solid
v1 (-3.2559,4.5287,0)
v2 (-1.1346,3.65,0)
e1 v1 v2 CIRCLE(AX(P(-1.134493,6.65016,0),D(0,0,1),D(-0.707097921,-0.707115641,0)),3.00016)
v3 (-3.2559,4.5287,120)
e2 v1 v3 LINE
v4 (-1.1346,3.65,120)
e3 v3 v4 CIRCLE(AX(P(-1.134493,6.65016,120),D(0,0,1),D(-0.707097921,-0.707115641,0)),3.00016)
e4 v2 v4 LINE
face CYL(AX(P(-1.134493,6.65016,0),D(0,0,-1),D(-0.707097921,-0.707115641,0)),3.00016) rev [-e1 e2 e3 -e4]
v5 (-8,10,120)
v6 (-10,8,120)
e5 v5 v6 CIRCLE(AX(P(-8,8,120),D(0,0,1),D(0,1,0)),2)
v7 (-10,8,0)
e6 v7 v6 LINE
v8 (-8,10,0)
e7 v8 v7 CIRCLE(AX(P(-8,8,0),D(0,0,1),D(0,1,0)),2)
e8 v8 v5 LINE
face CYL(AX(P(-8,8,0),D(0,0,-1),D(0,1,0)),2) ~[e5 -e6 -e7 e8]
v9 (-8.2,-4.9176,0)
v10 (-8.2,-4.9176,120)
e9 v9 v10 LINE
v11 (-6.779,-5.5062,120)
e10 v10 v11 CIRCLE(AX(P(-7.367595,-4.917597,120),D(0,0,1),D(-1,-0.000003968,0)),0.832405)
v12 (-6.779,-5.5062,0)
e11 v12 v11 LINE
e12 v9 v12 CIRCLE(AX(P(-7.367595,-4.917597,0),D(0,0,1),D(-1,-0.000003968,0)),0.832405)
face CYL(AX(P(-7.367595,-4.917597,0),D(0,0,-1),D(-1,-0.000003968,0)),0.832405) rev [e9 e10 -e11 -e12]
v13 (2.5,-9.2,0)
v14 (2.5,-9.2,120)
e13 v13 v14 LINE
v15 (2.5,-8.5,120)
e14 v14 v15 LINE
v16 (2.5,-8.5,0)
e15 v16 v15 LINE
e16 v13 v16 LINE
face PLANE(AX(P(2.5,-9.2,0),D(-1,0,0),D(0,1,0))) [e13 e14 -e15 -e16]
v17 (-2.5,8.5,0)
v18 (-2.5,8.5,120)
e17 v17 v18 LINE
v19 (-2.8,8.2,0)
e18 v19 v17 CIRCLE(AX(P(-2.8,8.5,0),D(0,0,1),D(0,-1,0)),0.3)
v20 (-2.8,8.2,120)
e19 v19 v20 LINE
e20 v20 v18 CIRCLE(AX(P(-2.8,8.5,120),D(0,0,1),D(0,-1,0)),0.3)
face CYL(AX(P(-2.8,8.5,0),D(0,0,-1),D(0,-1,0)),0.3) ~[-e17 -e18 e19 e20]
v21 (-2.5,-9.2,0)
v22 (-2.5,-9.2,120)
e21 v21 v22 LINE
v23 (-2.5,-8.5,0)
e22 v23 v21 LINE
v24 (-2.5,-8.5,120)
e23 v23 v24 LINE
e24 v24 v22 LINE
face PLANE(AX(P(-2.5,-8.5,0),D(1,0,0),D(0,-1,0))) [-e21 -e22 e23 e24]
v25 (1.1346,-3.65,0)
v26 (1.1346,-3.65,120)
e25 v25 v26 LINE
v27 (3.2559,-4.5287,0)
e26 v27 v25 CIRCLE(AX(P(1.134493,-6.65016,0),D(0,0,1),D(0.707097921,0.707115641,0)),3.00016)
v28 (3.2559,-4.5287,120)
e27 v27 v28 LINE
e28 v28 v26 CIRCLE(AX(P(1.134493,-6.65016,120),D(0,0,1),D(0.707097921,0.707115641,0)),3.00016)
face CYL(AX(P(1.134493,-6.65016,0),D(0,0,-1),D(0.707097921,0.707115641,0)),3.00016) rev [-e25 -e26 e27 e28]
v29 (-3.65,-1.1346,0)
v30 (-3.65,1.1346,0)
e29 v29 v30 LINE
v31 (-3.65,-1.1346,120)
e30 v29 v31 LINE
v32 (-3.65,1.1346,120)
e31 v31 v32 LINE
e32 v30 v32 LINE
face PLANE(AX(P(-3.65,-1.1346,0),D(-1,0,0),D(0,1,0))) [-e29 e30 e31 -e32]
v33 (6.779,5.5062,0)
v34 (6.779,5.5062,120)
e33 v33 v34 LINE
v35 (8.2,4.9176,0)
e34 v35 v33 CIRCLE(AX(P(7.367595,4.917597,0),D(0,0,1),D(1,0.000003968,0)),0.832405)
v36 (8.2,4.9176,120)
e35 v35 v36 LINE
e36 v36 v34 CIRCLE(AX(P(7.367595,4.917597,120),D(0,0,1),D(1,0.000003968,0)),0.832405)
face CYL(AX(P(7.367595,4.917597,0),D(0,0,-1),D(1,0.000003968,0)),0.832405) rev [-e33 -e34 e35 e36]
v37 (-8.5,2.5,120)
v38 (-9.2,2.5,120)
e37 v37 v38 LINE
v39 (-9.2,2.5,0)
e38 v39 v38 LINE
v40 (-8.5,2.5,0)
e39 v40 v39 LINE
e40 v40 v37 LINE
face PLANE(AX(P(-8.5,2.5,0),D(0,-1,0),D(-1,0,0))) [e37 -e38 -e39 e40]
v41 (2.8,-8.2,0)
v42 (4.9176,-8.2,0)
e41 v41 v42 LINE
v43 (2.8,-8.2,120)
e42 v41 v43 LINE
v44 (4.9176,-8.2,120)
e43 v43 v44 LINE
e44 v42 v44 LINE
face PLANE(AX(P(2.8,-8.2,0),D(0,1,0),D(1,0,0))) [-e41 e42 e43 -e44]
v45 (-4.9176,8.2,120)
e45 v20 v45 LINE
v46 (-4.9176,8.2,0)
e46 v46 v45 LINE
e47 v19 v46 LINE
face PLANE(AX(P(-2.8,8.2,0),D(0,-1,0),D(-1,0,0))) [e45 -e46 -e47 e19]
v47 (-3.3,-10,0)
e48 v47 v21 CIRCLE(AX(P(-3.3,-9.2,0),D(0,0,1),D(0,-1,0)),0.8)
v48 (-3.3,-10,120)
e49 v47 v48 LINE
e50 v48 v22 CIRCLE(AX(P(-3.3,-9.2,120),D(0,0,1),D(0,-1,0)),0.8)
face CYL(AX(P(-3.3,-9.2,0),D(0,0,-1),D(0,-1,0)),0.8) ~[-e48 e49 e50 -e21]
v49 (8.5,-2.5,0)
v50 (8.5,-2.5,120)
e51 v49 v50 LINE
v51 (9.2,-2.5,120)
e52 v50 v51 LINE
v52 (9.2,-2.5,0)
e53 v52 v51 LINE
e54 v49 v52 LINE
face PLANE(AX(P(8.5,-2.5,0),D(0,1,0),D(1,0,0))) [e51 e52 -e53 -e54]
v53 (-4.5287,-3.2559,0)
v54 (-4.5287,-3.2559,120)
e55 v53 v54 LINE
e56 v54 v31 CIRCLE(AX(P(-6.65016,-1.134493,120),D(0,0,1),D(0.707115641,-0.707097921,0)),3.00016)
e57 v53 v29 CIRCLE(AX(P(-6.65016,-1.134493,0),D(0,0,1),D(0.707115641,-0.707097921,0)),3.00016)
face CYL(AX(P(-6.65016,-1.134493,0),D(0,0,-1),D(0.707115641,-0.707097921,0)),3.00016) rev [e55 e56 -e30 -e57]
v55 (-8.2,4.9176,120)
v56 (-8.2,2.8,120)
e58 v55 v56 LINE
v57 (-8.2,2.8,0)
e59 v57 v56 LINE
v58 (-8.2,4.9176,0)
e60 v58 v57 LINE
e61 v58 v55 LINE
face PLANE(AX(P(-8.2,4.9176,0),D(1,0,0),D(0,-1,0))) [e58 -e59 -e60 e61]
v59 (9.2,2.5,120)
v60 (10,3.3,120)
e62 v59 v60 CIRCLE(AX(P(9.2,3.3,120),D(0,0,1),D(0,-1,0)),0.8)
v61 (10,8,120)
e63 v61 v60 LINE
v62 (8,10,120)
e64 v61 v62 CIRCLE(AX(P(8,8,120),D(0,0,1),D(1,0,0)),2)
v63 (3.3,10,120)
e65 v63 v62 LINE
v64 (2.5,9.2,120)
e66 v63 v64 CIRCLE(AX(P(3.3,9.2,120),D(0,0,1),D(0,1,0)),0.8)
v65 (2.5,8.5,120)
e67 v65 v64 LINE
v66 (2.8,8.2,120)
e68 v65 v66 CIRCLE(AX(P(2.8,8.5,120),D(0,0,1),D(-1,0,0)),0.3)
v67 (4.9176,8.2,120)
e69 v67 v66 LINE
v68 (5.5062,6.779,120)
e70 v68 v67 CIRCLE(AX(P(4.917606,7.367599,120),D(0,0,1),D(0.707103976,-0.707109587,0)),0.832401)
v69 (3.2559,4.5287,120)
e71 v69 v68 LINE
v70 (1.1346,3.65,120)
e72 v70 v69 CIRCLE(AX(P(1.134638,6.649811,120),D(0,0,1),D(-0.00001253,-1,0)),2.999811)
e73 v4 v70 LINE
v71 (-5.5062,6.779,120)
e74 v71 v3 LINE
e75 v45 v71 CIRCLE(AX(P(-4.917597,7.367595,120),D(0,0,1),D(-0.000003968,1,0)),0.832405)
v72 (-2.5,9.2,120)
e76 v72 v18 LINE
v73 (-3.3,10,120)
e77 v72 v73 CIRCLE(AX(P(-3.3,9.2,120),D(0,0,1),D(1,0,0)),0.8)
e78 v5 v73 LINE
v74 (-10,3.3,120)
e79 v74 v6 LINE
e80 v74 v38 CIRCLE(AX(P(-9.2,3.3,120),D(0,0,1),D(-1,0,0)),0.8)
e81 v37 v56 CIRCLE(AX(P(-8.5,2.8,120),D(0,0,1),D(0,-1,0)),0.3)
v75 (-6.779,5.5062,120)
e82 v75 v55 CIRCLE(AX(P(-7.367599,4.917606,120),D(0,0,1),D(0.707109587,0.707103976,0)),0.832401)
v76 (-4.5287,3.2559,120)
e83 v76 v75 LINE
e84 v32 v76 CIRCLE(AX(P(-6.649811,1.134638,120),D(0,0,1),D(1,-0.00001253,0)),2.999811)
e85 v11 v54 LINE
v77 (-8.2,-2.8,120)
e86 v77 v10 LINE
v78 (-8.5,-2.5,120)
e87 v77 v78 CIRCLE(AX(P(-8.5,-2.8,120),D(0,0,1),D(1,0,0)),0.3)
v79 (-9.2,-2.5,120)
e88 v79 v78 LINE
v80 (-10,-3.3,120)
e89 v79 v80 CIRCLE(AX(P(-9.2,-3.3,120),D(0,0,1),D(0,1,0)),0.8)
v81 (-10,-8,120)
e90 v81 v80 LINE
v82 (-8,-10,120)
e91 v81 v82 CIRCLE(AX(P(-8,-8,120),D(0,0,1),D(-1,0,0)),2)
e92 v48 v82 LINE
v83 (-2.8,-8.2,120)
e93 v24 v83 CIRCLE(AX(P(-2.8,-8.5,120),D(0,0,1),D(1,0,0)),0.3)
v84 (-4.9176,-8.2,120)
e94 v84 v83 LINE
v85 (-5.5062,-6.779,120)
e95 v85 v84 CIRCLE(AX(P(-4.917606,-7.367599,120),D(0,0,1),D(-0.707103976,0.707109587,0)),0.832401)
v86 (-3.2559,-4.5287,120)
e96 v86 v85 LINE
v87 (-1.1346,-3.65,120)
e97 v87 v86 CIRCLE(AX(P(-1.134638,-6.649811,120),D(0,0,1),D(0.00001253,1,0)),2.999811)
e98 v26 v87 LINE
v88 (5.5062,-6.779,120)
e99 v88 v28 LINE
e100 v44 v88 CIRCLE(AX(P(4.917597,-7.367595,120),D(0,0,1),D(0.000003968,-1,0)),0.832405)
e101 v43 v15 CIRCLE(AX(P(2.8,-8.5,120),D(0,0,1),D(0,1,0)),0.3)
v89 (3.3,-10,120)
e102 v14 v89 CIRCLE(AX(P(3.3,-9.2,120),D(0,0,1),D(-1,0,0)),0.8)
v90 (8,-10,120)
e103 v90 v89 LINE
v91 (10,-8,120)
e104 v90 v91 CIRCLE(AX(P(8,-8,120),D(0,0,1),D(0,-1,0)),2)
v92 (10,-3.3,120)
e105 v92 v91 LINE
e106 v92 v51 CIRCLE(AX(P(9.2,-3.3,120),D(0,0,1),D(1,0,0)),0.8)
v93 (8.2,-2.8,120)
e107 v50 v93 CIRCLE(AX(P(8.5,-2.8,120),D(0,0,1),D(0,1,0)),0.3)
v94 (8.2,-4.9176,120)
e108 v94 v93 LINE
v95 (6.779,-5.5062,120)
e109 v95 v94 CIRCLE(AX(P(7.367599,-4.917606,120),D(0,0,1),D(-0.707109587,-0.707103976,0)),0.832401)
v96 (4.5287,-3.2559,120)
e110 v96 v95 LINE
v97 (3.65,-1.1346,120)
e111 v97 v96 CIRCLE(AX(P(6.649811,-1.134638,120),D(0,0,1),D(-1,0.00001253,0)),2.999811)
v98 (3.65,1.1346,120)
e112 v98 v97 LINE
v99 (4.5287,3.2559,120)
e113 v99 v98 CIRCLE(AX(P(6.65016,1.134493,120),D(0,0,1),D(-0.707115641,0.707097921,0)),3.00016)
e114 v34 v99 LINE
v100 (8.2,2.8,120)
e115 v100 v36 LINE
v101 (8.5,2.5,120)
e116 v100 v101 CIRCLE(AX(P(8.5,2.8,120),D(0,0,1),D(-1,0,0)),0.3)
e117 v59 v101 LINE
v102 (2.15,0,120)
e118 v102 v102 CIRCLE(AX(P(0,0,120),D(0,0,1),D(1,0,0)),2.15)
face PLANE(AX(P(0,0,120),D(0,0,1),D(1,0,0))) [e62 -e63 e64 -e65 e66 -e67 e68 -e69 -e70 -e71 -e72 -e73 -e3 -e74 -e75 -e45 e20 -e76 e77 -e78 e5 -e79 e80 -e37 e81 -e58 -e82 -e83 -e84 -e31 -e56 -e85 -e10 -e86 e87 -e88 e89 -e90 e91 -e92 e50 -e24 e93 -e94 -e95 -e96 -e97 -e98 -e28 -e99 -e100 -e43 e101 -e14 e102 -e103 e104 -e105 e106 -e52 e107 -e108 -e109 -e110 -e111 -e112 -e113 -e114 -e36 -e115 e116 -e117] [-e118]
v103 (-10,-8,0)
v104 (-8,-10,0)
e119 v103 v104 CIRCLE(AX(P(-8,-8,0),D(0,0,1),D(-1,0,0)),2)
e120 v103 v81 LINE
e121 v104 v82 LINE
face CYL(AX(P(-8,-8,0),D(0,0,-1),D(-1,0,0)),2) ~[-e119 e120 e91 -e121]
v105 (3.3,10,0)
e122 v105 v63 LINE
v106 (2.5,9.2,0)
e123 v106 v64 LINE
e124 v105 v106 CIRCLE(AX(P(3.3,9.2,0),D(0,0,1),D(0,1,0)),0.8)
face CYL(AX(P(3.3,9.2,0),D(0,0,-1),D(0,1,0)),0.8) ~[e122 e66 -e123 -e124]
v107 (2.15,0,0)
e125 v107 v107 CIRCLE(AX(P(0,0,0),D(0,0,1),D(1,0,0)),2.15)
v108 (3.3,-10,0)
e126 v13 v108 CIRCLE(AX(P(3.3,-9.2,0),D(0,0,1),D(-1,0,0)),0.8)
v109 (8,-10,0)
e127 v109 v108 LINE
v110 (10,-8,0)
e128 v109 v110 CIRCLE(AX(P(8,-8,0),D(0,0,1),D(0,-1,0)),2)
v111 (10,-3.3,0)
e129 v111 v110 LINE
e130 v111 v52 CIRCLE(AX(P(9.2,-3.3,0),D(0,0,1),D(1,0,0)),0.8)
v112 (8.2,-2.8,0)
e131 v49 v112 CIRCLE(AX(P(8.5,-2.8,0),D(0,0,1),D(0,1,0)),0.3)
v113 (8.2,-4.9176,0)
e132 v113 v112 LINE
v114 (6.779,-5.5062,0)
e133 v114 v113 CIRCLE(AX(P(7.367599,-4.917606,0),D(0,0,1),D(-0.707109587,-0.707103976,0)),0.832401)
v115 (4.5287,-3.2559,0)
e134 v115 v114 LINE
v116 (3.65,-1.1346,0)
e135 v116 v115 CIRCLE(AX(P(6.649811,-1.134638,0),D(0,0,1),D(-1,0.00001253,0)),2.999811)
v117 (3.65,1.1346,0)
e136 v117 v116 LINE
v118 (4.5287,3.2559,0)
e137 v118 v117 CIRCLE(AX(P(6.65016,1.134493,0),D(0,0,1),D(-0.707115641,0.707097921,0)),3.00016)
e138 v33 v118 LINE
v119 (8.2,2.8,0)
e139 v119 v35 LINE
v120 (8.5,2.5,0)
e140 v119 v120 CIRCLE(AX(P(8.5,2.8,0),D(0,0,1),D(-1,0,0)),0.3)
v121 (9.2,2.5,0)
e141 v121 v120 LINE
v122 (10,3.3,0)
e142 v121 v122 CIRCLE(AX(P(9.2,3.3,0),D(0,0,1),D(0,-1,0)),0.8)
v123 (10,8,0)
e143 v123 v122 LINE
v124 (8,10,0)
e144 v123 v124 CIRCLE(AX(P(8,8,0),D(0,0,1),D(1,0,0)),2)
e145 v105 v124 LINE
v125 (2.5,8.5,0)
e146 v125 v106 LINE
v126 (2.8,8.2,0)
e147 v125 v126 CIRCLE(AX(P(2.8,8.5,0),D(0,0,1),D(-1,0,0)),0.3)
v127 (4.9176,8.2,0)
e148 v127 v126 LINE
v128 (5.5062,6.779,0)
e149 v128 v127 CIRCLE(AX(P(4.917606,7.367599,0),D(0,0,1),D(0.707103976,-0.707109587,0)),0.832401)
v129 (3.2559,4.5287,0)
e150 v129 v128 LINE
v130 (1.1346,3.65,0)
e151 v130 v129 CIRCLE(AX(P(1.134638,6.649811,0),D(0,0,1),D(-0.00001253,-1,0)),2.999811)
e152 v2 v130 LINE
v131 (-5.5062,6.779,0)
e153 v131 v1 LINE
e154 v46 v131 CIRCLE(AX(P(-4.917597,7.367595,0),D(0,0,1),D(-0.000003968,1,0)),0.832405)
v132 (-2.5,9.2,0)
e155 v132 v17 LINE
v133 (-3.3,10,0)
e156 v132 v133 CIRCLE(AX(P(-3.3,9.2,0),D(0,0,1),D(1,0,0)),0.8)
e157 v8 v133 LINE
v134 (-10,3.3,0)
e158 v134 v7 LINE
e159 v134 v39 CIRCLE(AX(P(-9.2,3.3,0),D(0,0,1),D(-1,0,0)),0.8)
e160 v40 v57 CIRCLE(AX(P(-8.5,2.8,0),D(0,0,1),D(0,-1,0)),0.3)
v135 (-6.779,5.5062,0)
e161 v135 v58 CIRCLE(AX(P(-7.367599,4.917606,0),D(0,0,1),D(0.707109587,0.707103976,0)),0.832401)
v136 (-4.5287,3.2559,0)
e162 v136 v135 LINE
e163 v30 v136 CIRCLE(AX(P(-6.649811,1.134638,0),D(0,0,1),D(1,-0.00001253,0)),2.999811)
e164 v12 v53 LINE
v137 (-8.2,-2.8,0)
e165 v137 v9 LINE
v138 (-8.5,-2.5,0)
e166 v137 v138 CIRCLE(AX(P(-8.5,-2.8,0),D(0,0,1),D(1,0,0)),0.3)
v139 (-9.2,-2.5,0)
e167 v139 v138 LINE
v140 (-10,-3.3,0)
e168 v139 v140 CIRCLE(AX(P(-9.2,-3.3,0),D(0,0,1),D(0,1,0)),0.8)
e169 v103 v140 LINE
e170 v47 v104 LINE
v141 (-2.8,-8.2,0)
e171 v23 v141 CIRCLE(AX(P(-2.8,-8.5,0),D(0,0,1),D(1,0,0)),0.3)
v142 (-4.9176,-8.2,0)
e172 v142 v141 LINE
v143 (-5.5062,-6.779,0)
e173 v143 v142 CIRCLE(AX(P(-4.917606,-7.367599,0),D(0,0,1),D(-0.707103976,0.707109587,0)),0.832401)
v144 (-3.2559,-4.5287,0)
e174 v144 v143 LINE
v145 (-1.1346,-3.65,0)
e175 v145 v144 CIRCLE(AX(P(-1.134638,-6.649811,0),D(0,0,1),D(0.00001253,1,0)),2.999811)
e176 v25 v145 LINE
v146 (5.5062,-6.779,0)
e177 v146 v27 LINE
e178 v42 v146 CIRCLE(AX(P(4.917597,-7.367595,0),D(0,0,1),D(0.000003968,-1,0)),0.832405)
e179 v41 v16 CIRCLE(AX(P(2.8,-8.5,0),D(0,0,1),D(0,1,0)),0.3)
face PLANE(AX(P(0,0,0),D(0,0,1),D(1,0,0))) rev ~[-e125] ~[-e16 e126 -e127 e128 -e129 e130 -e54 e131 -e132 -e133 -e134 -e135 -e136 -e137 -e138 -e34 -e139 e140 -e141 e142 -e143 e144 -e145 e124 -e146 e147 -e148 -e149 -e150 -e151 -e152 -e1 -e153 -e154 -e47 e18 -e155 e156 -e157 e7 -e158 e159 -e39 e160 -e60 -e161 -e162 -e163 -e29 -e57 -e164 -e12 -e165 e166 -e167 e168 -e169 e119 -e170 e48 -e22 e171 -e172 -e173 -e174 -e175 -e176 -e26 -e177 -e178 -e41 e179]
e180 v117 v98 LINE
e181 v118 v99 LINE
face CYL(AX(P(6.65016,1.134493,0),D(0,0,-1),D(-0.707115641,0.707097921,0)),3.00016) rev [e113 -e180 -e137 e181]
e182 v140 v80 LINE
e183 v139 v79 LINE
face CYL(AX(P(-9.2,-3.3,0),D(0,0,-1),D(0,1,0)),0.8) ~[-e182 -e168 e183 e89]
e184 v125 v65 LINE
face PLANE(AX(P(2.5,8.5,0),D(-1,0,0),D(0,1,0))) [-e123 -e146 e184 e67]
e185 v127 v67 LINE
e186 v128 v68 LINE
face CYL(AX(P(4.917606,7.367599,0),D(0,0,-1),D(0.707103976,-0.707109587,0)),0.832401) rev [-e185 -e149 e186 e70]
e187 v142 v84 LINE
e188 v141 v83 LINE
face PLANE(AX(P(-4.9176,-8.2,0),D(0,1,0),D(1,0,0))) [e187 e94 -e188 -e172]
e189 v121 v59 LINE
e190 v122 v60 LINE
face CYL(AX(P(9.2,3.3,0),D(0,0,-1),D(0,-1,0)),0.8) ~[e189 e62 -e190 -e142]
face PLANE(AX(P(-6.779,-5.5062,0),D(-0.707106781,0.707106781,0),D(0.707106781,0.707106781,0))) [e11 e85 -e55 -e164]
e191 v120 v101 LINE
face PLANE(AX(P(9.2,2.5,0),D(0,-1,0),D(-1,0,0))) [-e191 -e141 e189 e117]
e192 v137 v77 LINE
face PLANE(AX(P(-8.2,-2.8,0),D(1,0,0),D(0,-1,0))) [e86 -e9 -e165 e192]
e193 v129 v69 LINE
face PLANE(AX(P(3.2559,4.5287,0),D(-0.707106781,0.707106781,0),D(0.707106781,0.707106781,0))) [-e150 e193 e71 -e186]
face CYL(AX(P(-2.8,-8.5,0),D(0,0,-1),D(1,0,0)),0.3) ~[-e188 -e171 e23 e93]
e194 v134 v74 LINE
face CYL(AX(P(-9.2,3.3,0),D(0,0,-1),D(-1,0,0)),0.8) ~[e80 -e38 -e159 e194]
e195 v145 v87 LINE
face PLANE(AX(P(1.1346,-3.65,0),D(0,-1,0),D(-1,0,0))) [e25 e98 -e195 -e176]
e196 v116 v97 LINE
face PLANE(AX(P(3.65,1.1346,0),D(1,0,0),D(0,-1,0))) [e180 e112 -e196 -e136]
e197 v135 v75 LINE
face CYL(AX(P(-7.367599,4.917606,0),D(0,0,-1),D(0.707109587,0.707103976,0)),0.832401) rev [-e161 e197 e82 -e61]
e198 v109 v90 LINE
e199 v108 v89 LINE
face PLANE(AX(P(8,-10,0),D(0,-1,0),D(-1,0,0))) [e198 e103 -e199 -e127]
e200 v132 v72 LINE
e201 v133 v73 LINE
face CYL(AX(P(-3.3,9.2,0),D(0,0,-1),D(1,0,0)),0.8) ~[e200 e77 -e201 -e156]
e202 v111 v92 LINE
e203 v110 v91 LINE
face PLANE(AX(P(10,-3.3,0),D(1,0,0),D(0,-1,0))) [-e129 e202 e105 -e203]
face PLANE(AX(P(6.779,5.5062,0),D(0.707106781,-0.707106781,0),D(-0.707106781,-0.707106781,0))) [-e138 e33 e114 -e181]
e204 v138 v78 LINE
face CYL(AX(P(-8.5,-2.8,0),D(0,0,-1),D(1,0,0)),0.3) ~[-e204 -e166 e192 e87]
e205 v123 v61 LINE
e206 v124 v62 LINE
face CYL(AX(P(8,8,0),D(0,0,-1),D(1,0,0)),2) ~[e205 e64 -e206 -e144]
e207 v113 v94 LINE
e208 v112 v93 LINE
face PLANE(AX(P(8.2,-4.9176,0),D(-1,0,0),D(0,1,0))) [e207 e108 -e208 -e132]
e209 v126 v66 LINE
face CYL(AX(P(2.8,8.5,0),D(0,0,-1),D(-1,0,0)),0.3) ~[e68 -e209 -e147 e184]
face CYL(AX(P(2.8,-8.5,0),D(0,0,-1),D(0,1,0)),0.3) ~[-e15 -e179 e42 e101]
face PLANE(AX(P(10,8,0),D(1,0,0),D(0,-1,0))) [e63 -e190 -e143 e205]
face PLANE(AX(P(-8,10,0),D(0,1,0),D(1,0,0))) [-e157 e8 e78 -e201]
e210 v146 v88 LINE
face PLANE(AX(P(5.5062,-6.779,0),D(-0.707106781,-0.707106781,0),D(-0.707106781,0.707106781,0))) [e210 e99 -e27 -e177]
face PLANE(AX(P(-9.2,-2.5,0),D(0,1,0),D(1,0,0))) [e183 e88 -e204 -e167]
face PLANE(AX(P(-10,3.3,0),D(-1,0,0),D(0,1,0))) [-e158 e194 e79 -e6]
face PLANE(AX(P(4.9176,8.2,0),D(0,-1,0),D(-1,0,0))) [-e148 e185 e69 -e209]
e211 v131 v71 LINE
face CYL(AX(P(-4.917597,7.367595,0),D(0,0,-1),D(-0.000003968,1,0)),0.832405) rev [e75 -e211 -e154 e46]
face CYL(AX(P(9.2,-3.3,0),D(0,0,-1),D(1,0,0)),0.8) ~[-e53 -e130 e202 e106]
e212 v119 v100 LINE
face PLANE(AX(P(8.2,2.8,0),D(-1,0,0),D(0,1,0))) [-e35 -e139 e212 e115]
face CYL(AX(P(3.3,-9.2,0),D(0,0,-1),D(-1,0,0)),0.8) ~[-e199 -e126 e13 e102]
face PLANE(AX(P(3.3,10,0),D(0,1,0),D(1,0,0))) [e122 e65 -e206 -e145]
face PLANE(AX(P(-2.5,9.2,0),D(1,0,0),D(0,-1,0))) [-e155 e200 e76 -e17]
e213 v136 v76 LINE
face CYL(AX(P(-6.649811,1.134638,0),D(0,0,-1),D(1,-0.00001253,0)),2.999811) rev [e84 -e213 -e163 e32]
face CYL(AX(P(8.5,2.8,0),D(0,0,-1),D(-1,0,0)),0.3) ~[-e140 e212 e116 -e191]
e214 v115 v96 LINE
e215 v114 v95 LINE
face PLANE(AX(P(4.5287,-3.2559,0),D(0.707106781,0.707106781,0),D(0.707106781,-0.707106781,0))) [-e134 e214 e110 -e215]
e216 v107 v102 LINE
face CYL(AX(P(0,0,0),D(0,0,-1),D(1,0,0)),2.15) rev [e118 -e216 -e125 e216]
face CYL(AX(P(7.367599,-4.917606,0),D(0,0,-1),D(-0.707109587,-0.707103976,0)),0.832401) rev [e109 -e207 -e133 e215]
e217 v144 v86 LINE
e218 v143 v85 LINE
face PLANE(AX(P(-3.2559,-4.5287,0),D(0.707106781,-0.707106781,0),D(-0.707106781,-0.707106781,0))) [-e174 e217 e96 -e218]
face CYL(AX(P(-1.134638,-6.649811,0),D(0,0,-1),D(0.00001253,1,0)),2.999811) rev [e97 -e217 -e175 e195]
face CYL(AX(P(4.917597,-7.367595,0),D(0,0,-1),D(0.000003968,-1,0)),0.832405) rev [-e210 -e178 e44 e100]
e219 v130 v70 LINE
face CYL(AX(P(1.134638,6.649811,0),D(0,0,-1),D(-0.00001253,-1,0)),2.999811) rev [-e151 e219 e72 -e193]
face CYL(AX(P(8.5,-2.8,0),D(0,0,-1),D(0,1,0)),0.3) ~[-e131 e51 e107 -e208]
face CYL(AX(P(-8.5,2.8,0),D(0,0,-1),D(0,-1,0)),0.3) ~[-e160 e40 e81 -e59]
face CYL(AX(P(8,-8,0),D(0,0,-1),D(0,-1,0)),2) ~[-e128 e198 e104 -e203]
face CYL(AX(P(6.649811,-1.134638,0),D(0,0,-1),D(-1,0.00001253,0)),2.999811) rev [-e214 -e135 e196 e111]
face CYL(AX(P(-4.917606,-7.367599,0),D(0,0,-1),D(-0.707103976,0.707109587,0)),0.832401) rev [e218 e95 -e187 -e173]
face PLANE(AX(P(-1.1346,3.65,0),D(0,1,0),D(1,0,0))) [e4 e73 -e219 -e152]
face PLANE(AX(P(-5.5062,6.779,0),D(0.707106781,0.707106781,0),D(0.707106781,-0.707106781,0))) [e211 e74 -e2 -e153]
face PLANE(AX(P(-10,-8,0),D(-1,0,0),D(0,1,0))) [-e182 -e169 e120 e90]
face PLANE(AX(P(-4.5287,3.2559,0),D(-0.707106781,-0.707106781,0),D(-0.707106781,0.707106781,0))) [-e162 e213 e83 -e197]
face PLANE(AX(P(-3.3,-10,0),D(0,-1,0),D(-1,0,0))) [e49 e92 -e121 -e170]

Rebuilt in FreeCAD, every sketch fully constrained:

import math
import FreeCAD as App
import Part
import Sketcher
from FreeCAD import Vector
Q = App.Units.Quantity

doc = App.newDocument("Part")
body = doc.addObject("PartDesign::Body", "Body")

# Sketch on XY plane
sketch1 = doc.addObject("Sketcher::SketchObject", "Sketch")
body.addObject(sketch1)
sketch1.AttachmentSupport = (doc.XY_Plane, [""])
sketch1.MapMode = "FlatFace"
sketch1.addGeometry(Part.ArcOfCircle(Part.Circle(Vector(-6.65, -1.1346, 0), Vector(0, 0, 1), 2.999971), math.radians(-45), math.radians(0)), False)
sketch1.addGeometry(Part.LineSegment(Vector(-4.5287, -3.2559, 0), Vector(-6.779, -5.5062, 0)), False)
sketch1.addGeometry(Part.ArcOfCircle(Part.Circle(Vector(-7.3676, -4.9176, 0), Vector(0, 0, 1), 0.8324), math.radians(180), math.radians(315)), False)
sketch1.addGeometry(Part.LineSegment(Vector(-8.2, -4.9176, 0), Vector(-8.2, -2.8, 0)), False)
sketch1.addGeometry(Part.ArcOfCircle(Part.Circle(Vector(-8.5, -2.8, 0), Vector(0, 0, 1), 0.3), math.radians(0), math.radians(90)), False)
sketch1.addGeometry(Part.LineSegment(Vector(-8.5, -2.5, 0), Vector(-9.2, -2.5, 0)), False)
sketch1.addGeometry(Part.ArcOfCircle(Part.Circle(Vector(-9.2, -3.3, 0), Vector(0, 0, 1), 0.8), math.radians(90), math.radians(180)), False)
sketch1.addGeometry(Part.LineSegment(Vector(-10, -3.3, 0), Vector(-10, -8, 0)), False)
sketch1.addGeometry(Part.ArcOfCircle(Part.Circle(Vector(-8, -8, 0), Vector(0, 0, 1), 2), math.radians(180), math.radians(270)), False)
sketch1.addGeometry(Part.LineSegment(Vector(-8, -10, 0), Vector(-3.3, -10, 0)), False)
sketch1.addGeometry(Part.ArcOfCircle(Part.Circle(Vector(-3.3, -9.2, 0), Vector(0, 0, 1), 0.8), math.radians(-90), math.radians(0)), False)
sketch1.addGeometry(Part.LineSegment(Vector(-2.5, -9.2, 0), Vector(-2.5, -8.5, 0)), False)
sketch1.addGeometry(Part.ArcOfCircle(Part.Circle(Vector(-2.8, -8.5, 0), Vector(0, 0, 1), 0.3), math.radians(0), math.radians(90)), False)
sketch1.addGeometry(Part.LineSegment(Vector(-2.8, -8.2, 0), Vector(-4.9176, -8.2, 0)), False)
sketch1.addGeometry(Part.ArcOfCircle(Part.Circle(Vector(-4.9176, -7.3676, 0), Vector(0, 0, 1), 0.832406), math.radians(135), math.radians(270)), False)
sketch1.addGeometry(Part.LineSegment(Vector(-5.5062, -6.779, 0), Vector(-3.2559, -4.5287, 0)), False)
sketch1.addGeometry(Part.ArcOfCircle(Part.Circle(Vector(-1.1346, -6.65, 0), Vector(0, 0, 1), 3), math.radians(90), math.radians(135)), False)
sketch1.addGeometry(Part.LineSegment(Vector(-1.1346, -3.65, 0), Vector(1.1346, -3.65, 0)), False)
sketch1.addGeometry(Part.ArcOfCircle(Part.Circle(Vector(1.1346, -6.65, 0), Vector(0, 0, 1), 2.999971), math.radians(45), math.radians(90)), False)
sketch1.addGeometry(Part.LineSegment(Vector(3.2559, -4.5287, 0), Vector(5.5062, -6.779, 0)), False)
sketch1.addGeometry(Part.ArcOfCircle(Part.Circle(Vector(4.9176, -7.3676, 0), Vector(0, 0, 1), 0.8324), math.radians(-90), math.radians(45)), False)
sketch1.addGeometry(Part.LineSegment(Vector(4.9176, -8.2, 0), Vector(2.8, -8.2, 0)), False)
sketch1.addGeometry(Part.ArcOfCircle(Part.Circle(Vector(2.8, -8.5, 0), Vector(0, 0, 1), 0.3), math.radians(90), math.radians(180)), False)
sketch1.addGeometry(Part.LineSegment(Vector(2.5, -8.5, 0), Vector(2.5, -9.2, 0)), False)
sketch1.addGeometry(Part.ArcOfCircle(Part.Circle(Vector(3.3, -9.2, 0), Vector(0, 0, 1), 0.8), math.radians(180), math.radians(270)), False)
sketch1.addGeometry(Part.LineSegment(Vector(3.3, -10, 0), Vector(8, -10, 0)), False)
sketch1.addGeometry(Part.ArcOfCircle(Part.Circle(Vector(8, -8, 0), Vector(0, 0, 1), 2), math.radians(-90), math.radians(0)), False)
sketch1.addGeometry(Part.LineSegment(Vector(10, -8, 0), Vector(10, -3.3, 0)), False)
sketch1.addGeometry(Part.ArcOfCircle(Part.Circle(Vector(9.2, -3.3, 0), Vector(0, 0, 1), 0.8), math.radians(0), math.radians(90)), False)
sketch1.addGeometry(Part.LineSegment(Vector(9.2, -2.5, 0), Vector(8.5, -2.5, 0)), False)
sketch1.addGeometry(Part.ArcOfCircle(Part.Circle(Vector(8.5, -2.8, 0), Vector(0, 0, 1), 0.3), math.radians(90), math.radians(180)), False)
sketch1.addGeometry(Part.LineSegment(Vector(8.2, -2.8, 0), Vector(8.2, -4.9176, 0)), False)
sketch1.addGeometry(Part.ArcOfCircle(Part.Circle(Vector(7.3676, -4.9176, 0), Vector(0, 0, 1), 0.832406), math.radians(-135), math.radians(0)), False)
sketch1.addGeometry(Part.LineSegment(Vector(6.779, -5.5062, 0), Vector(4.5287, -3.2559, 0)), False)
sketch1.addGeometry(Part.ArcOfCircle(Part.Circle(Vector(6.65, -1.1346, 0), Vector(0, 0, 1), 3), math.radians(180), math.radians(225)), False)
sketch1.addGeometry(Part.LineSegment(Vector(3.65, -1.1346, 0), Vector(3.65, 1.1346, 0)), False)
sketch1.addGeometry(Part.ArcOfCircle(Part.Circle(Vector(6.65, 1.1346, 0), Vector(0, 0, 1), 2.999971), math.radians(135), math.radians(180)), False)
sketch1.addGeometry(Part.LineSegment(Vector(4.5287, 3.2559, 0), Vector(6.779, 5.5062, 0)), False)
sketch1.addGeometry(Part.ArcOfCircle(Part.Circle(Vector(7.3676, 4.9176, 0), Vector(0, 0, 1), 0.8324), math.radians(0), math.radians(135)), False)
sketch1.addGeometry(Part.LineSegment(Vector(8.2, 4.9176, 0), Vector(8.2, 2.8, 0)), False)
sketch1.addGeometry(Part.ArcOfCircle(Part.Circle(Vector(8.5, 2.8, 0), Vector(0, 0, 1), 0.3), math.radians(180), math.radians(270)), False)
sketch1.addGeometry(Part.LineSegment(Vector(8.5, 2.5, 0), Vector(9.2, 2.5, 0)), False)
sketch1.addGeometry(Part.ArcOfCircle(Part.Circle(Vector(9.2, 3.3, 0), Vector(0, 0, 1), 0.8), math.radians(-90), math.radians(0)), False)
sketch1.addGeometry(Part.LineSegment(Vector(10, 3.3, 0), Vector(10, 8, 0)), False)
sketch1.addGeometry(Part.ArcOfCircle(Part.Circle(Vector(8, 8, 0), Vector(0, 0, 1), 2), math.radians(0), math.radians(90)), False)
sketch1.addGeometry(Part.LineSegment(Vector(8, 10, 0), Vector(3.3, 10, 0)), False)
sketch1.addGeometry(Part.ArcOfCircle(Part.Circle(Vector(3.3, 9.2, 0), Vector(0, 0, 1), 0.8), math.radians(90), math.radians(180)), False)
sketch1.addGeometry(Part.LineSegment(Vector(2.5, 9.2, 0), Vector(2.5, 8.5, 0)), False)
sketch1.addGeometry(Part.ArcOfCircle(Part.Circle(Vector(2.8, 8.5, 0), Vector(0, 0, 1), 0.3), math.radians(180), math.radians(270)), False)
sketch1.addGeometry(Part.LineSegment(Vector(2.8, 8.2, 0), Vector(4.9176, 8.2, 0)), False)
sketch1.addGeometry(Part.ArcOfCircle(Part.Circle(Vector(4.9176, 7.3676, 0), Vector(0, 0, 1), 0.832406), math.radians(-45), math.radians(90)), False)
sketch1.addGeometry(Part.LineSegment(Vector(5.5062, 6.779, 0), Vector(3.2559, 4.5287, 0)), False)
sketch1.addGeometry(Part.ArcOfCircle(Part.Circle(Vector(1.1346, 6.65, 0), Vector(0, 0, 1), 3), math.radians(-90), math.radians(-45)), False)
sketch1.addGeometry(Part.LineSegment(Vector(1.1346, 3.65, 0), Vector(-1.1346, 3.65, 0)), False)
sketch1.addGeometry(Part.ArcOfCircle(Part.Circle(Vector(-1.1346, 6.65, 0), Vector(0, 0, 1), 2.999971), math.radians(-135), math.radians(-90)), False)
sketch1.addGeometry(Part.LineSegment(Vector(-3.2559, 4.5287, 0), Vector(-5.5062, 6.779, 0)), False)
sketch1.addGeometry(Part.ArcOfCircle(Part.Circle(Vector(-4.9176, 7.3676, 0), Vector(0, 0, 1), 0.8324), math.radians(90), math.radians(225)), False)
sketch1.addGeometry(Part.LineSegment(Vector(-4.9176, 8.2, 0), Vector(-2.8, 8.2, 0)), False)
sketch1.addGeometry(Part.ArcOfCircle(Part.Circle(Vector(-2.8, 8.5, 0), Vector(0, 0, 1), 0.3), math.radians(-90), math.radians(0)), False)
sketch1.addGeometry(Part.LineSegment(Vector(-2.5, 8.5, 0), Vector(-2.5, 9.2, 0)), False)
sketch1.addGeometry(Part.ArcOfCircle(Part.Circle(Vector(-3.3, 9.2, 0), Vector(0, 0, 1), 0.8), math.radians(0), math.radians(90)), False)
sketch1.addGeometry(Part.LineSegment(Vector(-3.3, 10, 0), Vector(-8, 10, 0)), False)
sketch1.addGeometry(Part.ArcOfCircle(Part.Circle(Vector(-8, 8, 0), Vector(0, 0, 1), 2), math.radians(90), math.radians(180)), False)
sketch1.addGeometry(Part.LineSegment(Vector(-10, 8, 0), Vector(-10, 3.3, 0)), False)
sketch1.addGeometry(Part.ArcOfCircle(Part.Circle(Vector(-9.2, 3.3, 0), Vector(0, 0, 1), 0.8), math.radians(180), math.radians(270)), False)
sketch1.addGeometry(Part.LineSegment(Vector(-9.2, 2.5, 0), Vector(-8.5, 2.5, 0)), False)
sketch1.addGeometry(Part.ArcOfCircle(Part.Circle(Vector(-8.5, 2.8, 0), Vector(0, 0, 1), 0.3), math.radians(-90), math.radians(0)), False)
sketch1.addGeometry(Part.LineSegment(Vector(-8.2, 2.8, 0), Vector(-8.2, 4.9176, 0)), False)
sketch1.addGeometry(Part.ArcOfCircle(Part.Circle(Vector(-7.3676, 4.9176, 0), Vector(0, 0, 1), 0.832406), math.radians(45), math.radians(180)), False)
sketch1.addGeometry(Part.LineSegment(Vector(-6.779, 5.5062, 0), Vector(-4.5287, 3.2559, 0)), False)
sketch1.addGeometry(Part.ArcOfCircle(Part.Circle(Vector(-6.65, 1.1346, 0), Vector(0, 0, 1), 3), math.radians(0), math.radians(45)), False)
sketch1.addGeometry(Part.LineSegment(Vector(-3.65, 1.1346, 0), Vector(-3.65, -1.1346, 0)), False)
sketch1.addGeometry(Part.Circle(Vector(0, 0, 0), Vector(0, 0, 1), 2.15), False)
sketch1.addConstraint(Sketcher.Constraint("Tangent", 0, 1, 1, 1))
sketch1.addConstraint(Sketcher.Constraint("Tangent", 1, 2, 2, 2))
sketch1.addConstraint(Sketcher.Constraint("Tangent", 2, 1, 3, 1))
sketch1.addConstraint(Sketcher.Constraint("Tangent", 3, 2, 4, 1))
sketch1.addConstraint(Sketcher.Constraint("Tangent", 4, 2, 5, 1))
sketch1.addConstraint(Sketcher.Constraint("Tangent", 5, 2, 6, 1))
sketch1.addConstraint(Sketcher.Constraint("Tangent", 6, 2, 7, 1))
sketch1.addConstraint(Sketcher.Constraint("Tangent", 7, 2, 8, 1))
sketch1.addConstraint(Sketcher.Constraint("Tangent", 8, 2, 9, 1))
sketch1.addConstraint(Sketcher.Constraint("Tangent", 9, 2, 10, 1))
sketch1.addConstraint(Sketcher.Constraint("Tangent", 10, 2, 11, 1))
sketch1.addConstraint(Sketcher.Constraint("Tangent", 11, 2, 12, 1))
sketch1.addConstraint(Sketcher.Constraint("Tangent", 12, 2, 13, 1))
sketch1.addConstraint(Sketcher.Constraint("Tangent", 13, 2, 14, 2))
sketch1.addConstraint(Sketcher.Constraint("Tangent", 14, 1, 15, 1))
sketch1.addConstraint(Sketcher.Constraint("Tangent", 15, 2, 16, 2))
sketch1.addConstraint(Sketcher.Constraint("Tangent", 16, 1, 17, 1))
sketch1.addConstraint(Sketcher.Constraint("Tangent", 17, 2, 18, 2))
sketch1.addConstraint(Sketcher.Constraint("Tangent", 18, 1, 19, 1))
sketch1.addConstraint(Sketcher.Constraint("Tangent", 19, 2, 20, 2))
sketch1.addConstraint(Sketcher.Constraint("Tangent", 20, 1, 21, 1))
sketch1.addConstraint(Sketcher.Constraint("Tangent", 21, 2, 22, 1))
sketch1.addConstraint(Sketcher.Constraint("Tangent", 22, 2, 23, 1))
sketch1.addConstraint(Sketcher.Constraint("Tangent", 23, 2, 24, 1))
sketch1.addConstraint(Sketcher.Constraint("Tangent", 24, 2, 25, 1))
sketch1.addConstraint(Sketcher.Constraint("Tangent", 25, 2, 26, 1))
sketch1.addConstraint(Sketcher.Constraint("Tangent", 26, 2, 27, 1))
sketch1.addConstraint(Sketcher.Constraint("Tangent", 27, 2, 28, 1))
sketch1.addConstraint(Sketcher.Constraint("Tangent", 28, 2, 29, 1))
sketch1.addConstraint(Sketcher.Constraint("Tangent", 29, 2, 30, 1))
sketch1.addConstraint(Sketcher.Constraint("Tangent", 30, 2, 31, 1))
sketch1.addConstraint(Sketcher.Constraint("Tangent", 31, 2, 32, 2))
sketch1.addConstraint(Sketcher.Constraint("Tangent", 32, 1, 33, 1))
sketch1.addConstraint(Sketcher.Constraint("Tangent", 33, 2, 34, 2))
sketch1.addConstraint(Sketcher.Constraint("Tangent", 34, 1, 35, 1))
sketch1.addConstraint(Sketcher.Constraint("Tangent", 35, 2, 36, 2))
sketch1.addConstraint(Sketcher.Constraint("Tangent", 36, 1, 37, 1))
sketch1.addConstraint(Sketcher.Constraint("Tangent", 37, 2, 38, 2))
sketch1.addConstraint(Sketcher.Constraint("Tangent", 38, 1, 39, 1))
sketch1.addConstraint(Sketcher.Constraint("Tangent", 39, 2, 40, 1))
sketch1.addConstraint(Sketcher.Constraint("Tangent", 40, 2, 41, 1))
sketch1.addConstraint(Sketcher.Constraint("Tangent", 41, 2, 42, 1))
sketch1.addConstraint(Sketcher.Constraint("Tangent", 42, 2, 43, 1))
sketch1.addConstraint(Sketcher.Constraint("Tangent", 43, 2, 44, 1))
sketch1.addConstraint(Sketcher.Constraint("Tangent", 44, 2, 45, 1))
sketch1.addConstraint(Sketcher.Constraint("Tangent", 45, 2, 46, 1))
sketch1.addConstraint(Sketcher.Constraint("Tangent", 46, 2, 47, 1))
sketch1.addConstraint(Sketcher.Constraint("Tangent", 47, 2, 48, 1))
sketch1.addConstraint(Sketcher.Constraint("Tangent", 48, 2, 49, 1))
sketch1.addConstraint(Sketcher.Constraint("Tangent", 49, 2, 50, 2))
sketch1.addConstraint(Sketcher.Constraint("Tangent", 50, 1, 51, 1))
sketch1.addConstraint(Sketcher.Constraint("Tangent", 51, 2, 52, 2))
sketch1.addConstraint(Sketcher.Constraint("Tangent", 52, 1, 53, 1))
sketch1.addConstraint(Sketcher.Constraint("Tangent", 53, 2, 54, 2))
sketch1.addConstraint(Sketcher.Constraint("Tangent", 54, 1, 55, 1))
sketch1.addConstraint(Sketcher.Constraint("Tangent", 55, 2, 56, 2))
sketch1.addConstraint(Sketcher.Constraint("Tangent", 56, 1, 57, 1))
sketch1.addConstraint(Sketcher.Constraint("Tangent", 57, 2, 58, 1))
sketch1.addConstraint(Sketcher.Constraint("Tangent", 58, 2, 59, 1))
sketch1.addConstraint(Sketcher.Constraint("Tangent", 59, 2, 60, 1))
sketch1.addConstraint(Sketcher.Constraint("Tangent", 60, 2, 61, 1))
sketch1.addConstraint(Sketcher.Constraint("Tangent", 61, 2, 62, 1))
sketch1.addConstraint(Sketcher.Constraint("Tangent", 62, 2, 63, 1))
sketch1.addConstraint(Sketcher.Constraint("Tangent", 63, 2, 64, 1))
sketch1.addConstraint(Sketcher.Constraint("Tangent", 64, 2, 65, 1))
sketch1.addConstraint(Sketcher.Constraint("Tangent", 65, 2, 66, 1))
sketch1.addConstraint(Sketcher.Constraint("Tangent", 66, 2, 67, 1))
sketch1.addConstraint(Sketcher.Constraint("Tangent", 67, 2, 68, 2))
sketch1.addConstraint(Sketcher.Constraint("Tangent", 68, 1, 69, 1))
sketch1.addConstraint(Sketcher.Constraint("Tangent", 69, 2, 70, 2))
sketch1.addConstraint(Sketcher.Constraint("Tangent", 70, 1, 71, 1))
sketch1.addConstraint(Sketcher.Constraint("Tangent", 71, 2, 0, 2))
sketch1.addConstraint(Sketcher.Constraint("Vertical", 3))
sketch1.addConstraint(Sketcher.Constraint("Horizontal", 5))
sketch1.addConstraint(Sketcher.Constraint("Vertical", 7))
sketch1.addConstraint(Sketcher.Constraint("Horizontal", 9))
sketch1.addConstraint(Sketcher.Constraint("Vertical", 11))
sketch1.addConstraint(Sketcher.Constraint("Horizontal", 13))
sketch1.addConstraint(Sketcher.Constraint("Horizontal", 17))
sketch1.addConstraint(Sketcher.Constraint("Horizontal", 21))
sketch1.addConstraint(Sketcher.Constraint("Vertical", 23))
sketch1.addConstraint(Sketcher.Constraint("Horizontal", 25))
sketch1.addConstraint(Sketcher.Constraint("Vertical", 27))
sketch1.addConstraint(Sketcher.Constraint("Horizontal", 29))
sketch1.addConstraint(Sketcher.Constraint("Vertical", 31))
sketch1.addConstraint(Sketcher.Constraint("Vertical", 35))
sketch1.addConstraint(Sketcher.Constraint("Vertical", 39))
sketch1.addConstraint(Sketcher.Constraint("Horizontal", 41))
sketch1.addConstraint(Sketcher.Constraint("Vertical", 43))
sketch1.addConstraint(Sketcher.Constraint("Horizontal", 45))
sketch1.addConstraint(Sketcher.Constraint("Vertical", 47))
sketch1.addConstraint(Sketcher.Constraint("Horizontal", 49))
sketch1.addConstraint(Sketcher.Constraint("Horizontal", 53))
sketch1.addConstraint(Sketcher.Constraint("Horizontal", 57))
sketch1.addConstraint(Sketcher.Constraint("Vertical", 59))
sketch1.addConstraint(Sketcher.Constraint("Horizontal", 61))
sketch1.addConstraint(Sketcher.Constraint("Vertical", 63))
sketch1.addConstraint(Sketcher.Constraint("Horizontal", 65))
sketch1.addConstraint(Sketcher.Constraint("Vertical", 67))
sketch1.addConstraint(Sketcher.Constraint("Vertical", 71))
sketch1.addConstraint(Sketcher.Constraint("Coincident", 72, 3, -1, 1))
sketch1.addConstraint(Sketcher.Constraint("Equal", 6, 10))
sketch1.addConstraint(Sketcher.Constraint("Equal", 4, 12))
sketch1.addConstraint(Sketcher.Constraint("Equal", 2, 14))
sketch1.addConstraint(Sketcher.Constraint("Equal", 0, 16))
sketch1.addConstraint(Sketcher.Constraint("Equal", 16, 18))
sketch1.addConstraint(Sketcher.Constraint("Equal", 14, 20))
sketch1.addConstraint(Sketcher.Constraint("Equal", 12, 22))
sketch1.addConstraint(Sketcher.Constraint("Equal", 10, 24))
sketch1.addConstraint(Sketcher.Constraint("Equal", 8, 26))
sketch1.addConstraint(Sketcher.Constraint("Equal", 24, 28))
sketch1.addConstraint(Sketcher.Constraint("Equal", 22, 30))
sketch1.addConstraint(Sketcher.Constraint("Equal", 20, 32))
sketch1.addConstraint(Sketcher.Constraint("Equal", 18, 34))
sketch1.addConstraint(Sketcher.Constraint("Equal", 34, 36))
sketch1.addConstraint(Sketcher.Constraint("Equal", 32, 38))
sketch1.addConstraint(Sketcher.Constraint("Equal", 30, 40))
sketch1.addConstraint(Sketcher.Constraint("Equal", 28, 42))
sketch1.addConstraint(Sketcher.Constraint("Equal", 26, 44))
sketch1.addConstraint(Sketcher.Constraint("Equal", 42, 46))
sketch1.addConstraint(Sketcher.Constraint("Equal", 40, 48))
sketch1.addConstraint(Sketcher.Constraint("Equal", 38, 50))
sketch1.addConstraint(Sketcher.Constraint("Equal", 36, 52))
sketch1.addConstraint(Sketcher.Constraint("Equal", 52, 54))
sketch1.addConstraint(Sketcher.Constraint("Equal", 50, 56))
sketch1.addConstraint(Sketcher.Constraint("Equal", 48, 58))
sketch1.addConstraint(Sketcher.Constraint("Equal", 46, 60))
sketch1.addConstraint(Sketcher.Constraint("Equal", 44, 62))
sketch1.addConstraint(Sketcher.Constraint("Equal", 60, 64))
sketch1.addConstraint(Sketcher.Constraint("Equal", 58, 66))
sketch1.addConstraint(Sketcher.Constraint("Equal", 56, 68))
sketch1.addConstraint(Sketcher.Constraint("Equal", 54, 70))
sketch1.addConstraint(Sketcher.Constraint("Symmetric", 0, 3, 36, 3, -1, 1))
sketch1.addConstraint(Sketcher.Constraint("Symmetric", 2, 3, 38, 3, -1, 1))
sketch1.addConstraint(Sketcher.Constraint("Symmetric", 6, 3, 42, 3, -1, 1))
sketch1.addConstraint(Sketcher.Constraint("Symmetric", 10, 3, 46, 3, -1, 1))
sketch1.addConstraint(Sketcher.Constraint("Symmetric", 14, 3, 50, 3, -1, 1))
sketch1.addConstraint(Sketcher.Constraint("Symmetric", 16, 3, 52, 3, -1, 1))
sketch1.addConstraint(Sketcher.Constraint("Symmetric", 20, 3, 56, 3, -1, 1))
sketch1.addConstraint(Sketcher.Constraint("Symmetric", 24, 3, 60, 3, -1, 1))
sketch1.addConstraint(Sketcher.Constraint("Symmetric", 28, 3, 64, 3, -1, 1))
sketch1.addConstraint(Sketcher.Constraint("Symmetric", 32, 3, 68, 3, -1, 1))
sketch1.addConstraint(Sketcher.Constraint("Symmetric", 14, 3, 20, 3, -2))
sketch1.addConstraint(Sketcher.Constraint("Symmetric", 10, 3, 24, 3, -2))
sketch1.addConstraint(Sketcher.Constraint("Symmetric", 6, 3, 28, 3, -2))
sketch1.addConstraint(Sketcher.Constraint("Symmetric", 2, 3, 32, 3, -2))
sketch1.addConstraint(Sketcher.Constraint("Parallel", 1, 15))
sketch1.addConstraint(Sketcher.Constraint("Perpendicular", 15, 19))
sketch1.addConstraint(Sketcher.Constraint("Parallel", 19, 33))
sketch1.addConstraint(Sketcher.Constraint("Perpendicular", 51, 55))
sketch1.addConstraint(Sketcher.Constraint("Parallel", 55, 69))
sketch1.addConstraint(Sketcher.Constraint("Horizontal", 0, 3, 34, 3))
sketch1.addConstraint(Sketcher.Constraint("Equal", 57, 3))
sketch1.addConstraint(Sketcher.Constraint("Equal", 61, 7))
sketch1.addConstraint(Sketcher.Constraint("Equal", 65, 11))
sketch1.addConstraint(Sketcher.Constraint("Equal", 53, 35))
sketch1.addConstraint(Sketcher.Constraint("Equal", 1, 15))
sketch1.addConstraint(Sketcher.Constraint("Radius", 0, Q("3 mm")))
sketch1.addConstraint(Sketcher.Constraint("Radius", 8, Q("2 mm")))
sketch1.addConstraint(Sketcher.Constraint("Diameter", 72, Q("4.3 mm")))
sketch1.addConstraint(Sketcher.Constraint("Radius", 4, Q("0.3 mm")))
sketch1.addConstraint(Sketcher.Constraint("Radius", 6, Q("0.8 mm")))
sketch1.addConstraint(Sketcher.Constraint("DistanceX", 6, 2, -1, 1, Q("10 mm")))
sketch1.addConstraint(Sketcher.Constraint("DistanceY", 4, 2, -1, 1, Q("2.5 mm")))
sketch1.addConstraint(Sketcher.Constraint("Radius", 2, Q("0.8324 mm")))
sketch1.addConstraint(Sketcher.Constraint("DistanceX", 5, 2, 5, 1, Q("0.7 mm")))
sketch1.addConstraint(Sketcher.Constraint("DistanceX", 0, 3, -1, 1, Q("6.65 mm")))
sketch1.addConstraint(Sketcher.Constraint("DistanceX", 13, 2, 13, 1, Q("2.1176 mm")))
pad1 = doc.addObject("PartDesign::Pad", "Pad")
body.addObject(pad1)
pad1.Profile = sketch1
pad1.Length = 120

doc.recompute()
